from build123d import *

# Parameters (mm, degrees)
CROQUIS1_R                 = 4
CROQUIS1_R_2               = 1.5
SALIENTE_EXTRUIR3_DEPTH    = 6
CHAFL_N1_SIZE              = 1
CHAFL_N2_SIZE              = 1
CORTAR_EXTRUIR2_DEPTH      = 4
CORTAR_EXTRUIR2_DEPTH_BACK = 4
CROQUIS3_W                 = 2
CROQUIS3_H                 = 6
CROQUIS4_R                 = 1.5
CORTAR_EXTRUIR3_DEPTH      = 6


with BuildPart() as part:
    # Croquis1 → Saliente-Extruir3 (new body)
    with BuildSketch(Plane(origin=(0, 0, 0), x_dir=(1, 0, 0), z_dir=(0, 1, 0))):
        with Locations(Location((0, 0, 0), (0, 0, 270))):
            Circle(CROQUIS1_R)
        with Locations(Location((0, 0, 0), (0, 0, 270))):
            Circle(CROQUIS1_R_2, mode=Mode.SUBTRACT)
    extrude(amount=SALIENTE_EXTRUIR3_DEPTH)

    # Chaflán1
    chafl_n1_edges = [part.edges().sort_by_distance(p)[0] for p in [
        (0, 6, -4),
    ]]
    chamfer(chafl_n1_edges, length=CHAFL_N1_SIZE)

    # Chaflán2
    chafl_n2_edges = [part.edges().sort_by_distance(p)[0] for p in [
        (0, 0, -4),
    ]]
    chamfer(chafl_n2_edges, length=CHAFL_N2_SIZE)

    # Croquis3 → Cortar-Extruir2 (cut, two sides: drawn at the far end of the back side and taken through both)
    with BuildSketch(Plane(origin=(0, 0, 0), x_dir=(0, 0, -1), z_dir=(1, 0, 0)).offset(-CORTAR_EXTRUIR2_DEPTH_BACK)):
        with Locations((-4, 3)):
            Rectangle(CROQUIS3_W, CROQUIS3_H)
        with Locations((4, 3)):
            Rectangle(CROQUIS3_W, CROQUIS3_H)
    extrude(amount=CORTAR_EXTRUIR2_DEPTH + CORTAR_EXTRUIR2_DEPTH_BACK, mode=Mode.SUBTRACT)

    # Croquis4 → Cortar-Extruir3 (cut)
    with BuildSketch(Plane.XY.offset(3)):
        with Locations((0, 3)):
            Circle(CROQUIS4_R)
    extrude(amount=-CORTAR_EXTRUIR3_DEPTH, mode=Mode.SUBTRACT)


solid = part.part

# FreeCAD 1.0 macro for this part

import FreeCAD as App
import Part
import Sketcher
from FreeCAD import Vector
Q = App.Units.Quantity


def edges_at(feature, points):
    """Names of the edges that pass closest to the given points."""
    edges = feature.Shape.Edges
    near = lambda p: min(range(len(edges)), key=lambda i: edges[i].distToShape(Part.Vertex(*p))[0])
    return sorted({f"Edge{near(p) + 1}" for p in points})


def add_polygon(sketch, points):
    """Adds a closed chain of lines whose ends are joined by coincident constraints."""
    first, n = sketch.GeometryCount, len(points)
    for a, b in zip(points, points[1:] + points[:1]):
        sketch.addGeometry(Part.LineSegment(App.Vector(*a, 0), App.Vector(*b, 0)), False)
    for i in range(n):
        sketch.addConstraint(Sketcher.Constraint("Coincident", first + i, 2, first + (i + 1) % n, 1))

doc = App.newDocument("Part")
params = doc.addObject("Spreadsheet::Sheet", "Params")
for row, (alias, value) in enumerate([
    ("sketch1_diameter", "8 mm"),
    ("sketch1_diameter2", "3 mm"),
    ("pad1_length", "6 mm"),
    ("chamfer_size", "1 mm"),
    ("chamfer2_size", "1 mm"),
    ("sketch2_width", "6 mm"),
    ("sketch2_height", "2 mm"),
    ("sketch3_diameter", "3 mm"),
    ("pocket2_length", "6 mm"),
], start=1):
    params.set(f"A{row}", alias)
    params.set(f"B{row}", "=" + value)
    params.setAlias(f"B{row}", alias)

body = doc.addObject("PartDesign::Body", "Body")

# Sketch on XZ plane
sketch1 = doc.addObject("Sketcher::SketchObject", "Sketch")
body.addObject(sketch1)
sketch1.AttachmentSupport = (doc.XZ_Plane, [""])
sketch1.MapMode = "FlatFace"
sketch1.addGeometry(Part.Circle(Vector(0, 0, 0), Vector(0, 0, 1), 4), False)
sketch1.addGeometry(Part.Circle(Vector(0, 0, 0), Vector(0, 0, 1), 1.5), False)
sketch1.addConstraint(Sketcher.Constraint("Coincident", 0, 3, -1, 1))
sketch1.addConstraint(Sketcher.Constraint("Coincident", 1, 3, -1, 1))
sketch1.addConstraint(Sketcher.Constraint("Diameter", 0, Q("8 mm")))
sketch1.addConstraint(Sketcher.Constraint("Diameter", 1, Q("3 mm")))
sketch1.setExpression("Constraints[2]", "Params.sketch1_diameter")
sketch1.setExpression("Constraints[3]", "Params.sketch1_diameter2")
pad1 = doc.addObject("PartDesign::Pad", "Pad")
body.addObject(pad1)
pad1.Profile = sketch1
pad1.setExpression("Length", "Params.pad1_length")
pad1.Reversed = True
doc.recompute()

chamfer = doc.addObject("PartDesign::Chamfer", "Chamfer")
body.addObject(chamfer)
chamfer.Base = (pad1, edges_at(pad1, [(0, 6, -4)]))
chamfer.setExpression("Size", "Params.chamfer_size")
doc.recompute()

chamfer2 = doc.addObject("PartDesign::Chamfer", "Chamfer001")
body.addObject(chamfer2)
chamfer2.Base = (chamfer, edges_at(chamfer, [(0, 0, -4)]))
chamfer2.setExpression("Size", "Params.chamfer2_size")

# Sketch on YZ plane
sketch2 = doc.addObject("Sketcher::SketchObject", "Sketch001")
body.addObject(sketch2)
sketch2.AttachmentSupport = (doc.YZ_Plane, [""])
sketch2.MapMode = "FlatFace"
add_polygon(sketch2, [(6, 5), (0, 5), (0, 3), (6, 3)])  # lines 0-3
add_polygon(sketch2, [(6, -3), (0, -3), (0, -5), (6, -5)])  # lines 4-7
sketch2.addConstraint(Sketcher.Constraint("Horizontal", 0))
sketch2.addConstraint(Sketcher.Constraint("Vertical", 1))
sketch2.addConstraint(Sketcher.Constraint("Horizontal", 2))
sketch2.addConstraint(Sketcher.Constraint("Vertical", 3))
sketch2.addConstraint(Sketcher.Constraint("Horizontal", 4))
sketch2.addConstraint(Sketcher.Constraint("Vertical", 5))
sketch2.addConstraint(Sketcher.Constraint("Horizontal", 6))
sketch2.addConstraint(Sketcher.Constraint("Vertical", 7))
sketch2.addConstraint(Sketcher.Constraint("Symmetric", 1, 2, 4, 2, -1, 1))
sketch2.addConstraint(Sketcher.Constraint("Symmetric", 0, 2, 5, 2, -1))
sketch2.addConstraint(Sketcher.Constraint("Vertical", 3, 2, 6, 2))
sketch2.addConstraint(Sketcher.Constraint("DistanceX", 0, 2, 0, 1, Q("6 mm")))
sketch2.addConstraint(Sketcher.Constraint("DistanceY", 1, 2, 1, 1, Q("2 mm")))
sketch2.addConstraint(Sketcher.Constraint("DistanceY", -1, 1, 0, 2, Q("5 mm")))
sketch2.setExpression("Constraints[19]", "Params.sketch2_width")
sketch2.setExpression("Constraints[20]", "Params.sketch2_height")
pocket1 = doc.addObject("PartDesign::Pocket", "Pocket")
body.addObject(pocket1)
pocket1.Profile = sketch2
pocket1.Type = "ThroughAll"
pocket1.Midplane = True

# Sketch on XY plane
sketch3 = doc.addObject("Sketcher::SketchObject", "Sketch002")
body.addObject(sketch3)
sketch3.AttachmentSupport = (doc.XY_Plane, [""])
sketch3.MapMode = "FlatFace"
sketch3.AttachmentOffset = App.Placement(Vector(0, 0, 3), App.Rotation())
sketch3.addGeometry(Part.Circle(Vector(0, 3, 0), Vector(0, 0, 1), 1.5), False)
sketch3.addConstraint(Sketcher.Constraint("PointOnObject", 0, 3, -2))
sketch3.addConstraint(Sketcher.Constraint("Diameter", 0, Q("3 mm")))
sketch3.addConstraint(Sketcher.Constraint("DistanceY", -1, 1, 0, 3, Q("3 mm")))
sketch3.setExpression("Constraints[1]", "Params.sketch3_diameter")
pocket2 = doc.addObject("PartDesign::Pocket", "Pocket001")
body.addObject(pocket2)
pocket2.Profile = sketch3
pocket2.setExpression("Length", "Params.pocket2_length")

doc.recompute()
